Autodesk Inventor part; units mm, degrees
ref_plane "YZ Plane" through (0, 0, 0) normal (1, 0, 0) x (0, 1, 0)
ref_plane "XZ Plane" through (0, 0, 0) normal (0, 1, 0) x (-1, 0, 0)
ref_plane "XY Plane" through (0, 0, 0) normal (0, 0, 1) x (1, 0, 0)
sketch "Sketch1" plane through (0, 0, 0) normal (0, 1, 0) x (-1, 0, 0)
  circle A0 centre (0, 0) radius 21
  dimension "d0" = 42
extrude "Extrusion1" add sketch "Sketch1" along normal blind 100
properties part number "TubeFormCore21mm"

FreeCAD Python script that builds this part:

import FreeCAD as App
import Part
import Sketcher

V = App.Vector

doc = App.newDocument("Part")
params = doc.addObject("Spreadsheet::Sheet", "Params")
for row, (alias, value) in enumerate([
    ("sketch1_diameter", "42 mm"),
    ("pad1_length", "100 mm"),
], start=1):
    params.set(f"A{row}", alias)
    params.set(f"B{row}", "=" + value)
    params.setAlias(f"B{row}", alias)

body = doc.addObject("PartDesign::Body", "Body")

sketch1 = doc.addObject("Sketcher::SketchObject", "Sketch")
body.addObject(sketch1)
sketch1.AttachmentSupport = (doc.XZ_Plane, [""])
sketch1.MapMode = "FlatFace"
sketch1.addGeometry(Part.Circle(V(0, 0, 0), V(0, 0, 1), 21), False)
sketch1.addConstraint(Sketcher.Constraint("Coincident", 0, 3, -1, 1))
sketch1.addConstraint(Sketcher.Constraint("Diameter", 0, 42.0))
sketch1.setExpression("Constraints[1]", "Params.sketch1_diameter")
pad1 = doc.addObject("PartDesign::Pad", "Pad")
body.addObject(pad1)
pad1.Profile = sketch1
pad1.setExpression("Length", "Params.pad1_length")
pad1.Reversed = True

doc.recompute()
